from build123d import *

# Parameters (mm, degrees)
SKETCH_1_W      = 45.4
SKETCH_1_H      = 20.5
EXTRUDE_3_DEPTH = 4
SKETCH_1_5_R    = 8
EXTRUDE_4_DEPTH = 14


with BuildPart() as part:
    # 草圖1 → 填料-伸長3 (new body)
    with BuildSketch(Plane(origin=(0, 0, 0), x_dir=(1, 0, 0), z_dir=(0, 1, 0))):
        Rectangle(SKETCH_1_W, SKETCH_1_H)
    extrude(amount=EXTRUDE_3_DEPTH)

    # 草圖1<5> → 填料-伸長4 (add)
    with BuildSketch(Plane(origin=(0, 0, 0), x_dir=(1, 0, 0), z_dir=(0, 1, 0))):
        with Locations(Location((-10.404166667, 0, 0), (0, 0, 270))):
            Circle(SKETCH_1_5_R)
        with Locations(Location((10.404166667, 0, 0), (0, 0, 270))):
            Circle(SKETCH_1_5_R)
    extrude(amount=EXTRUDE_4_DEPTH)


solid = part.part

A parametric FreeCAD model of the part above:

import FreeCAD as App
import Part
import Sketcher
from FreeCAD import Vector


def add_polygon(sketch, points):
    """Adds a closed chain of lines whose ends are joined by coincident constraints."""
    first, n = sketch.GeometryCount, len(points)
    for a, b in zip(points, points[1:] + points[:1]):
        sketch.addGeometry(Part.LineSegment(App.Vector(*a, 0), App.Vector(*b, 0)), False)
    for i in range(n):
        sketch.addConstraint(Sketcher.Constraint("Coincident", first + i, 2, first + (i + 1) % n, 1))

doc = App.newDocument("Part")
body = doc.addObject("PartDesign::Body", "Body")

sketch1 = doc.addObject("Sketcher::SketchObject", "Sketch")
body.addObject(sketch1)
sketch1.AttachmentSupport = (doc.XZ_Plane, [""])
sketch1.MapMode = "FlatFace"
add_polygon(sketch1, [(-23, -10), (-23, 10), (23, 10), (23, -10)])
sketch1.addConstraint(Sketcher.Constraint("Vertical", 0))
sketch1.addConstraint(Sketcher.Constraint("Horizontal", 1))
sketch1.addConstraint(Sketcher.Constraint("Vertical", 2))
sketch1.addConstraint(Sketcher.Constraint("Horizontal", 3))
sketch1.addConstraint(Sketcher.Constraint("Symmetric", 0, 2, 2, 2, -1, 1))
sketch1.addConstraint(Sketcher.Constraint("DistanceX", 1, 1, 1, 2, 45.4))
sketch1.addConstraint(Sketcher.Constraint("DistanceY", 0, 1, 0, 2, 20.5))
pad1 = doc.addObject("PartDesign::Pad", "Pad")
body.addObject(pad1)
pad1.Profile = sketch1
pad1.Length = 4
pad1.Reversed = True

sketch2 = doc.addObject("Sketcher::SketchObject", "Sketch001")
body.addObject(sketch2)
sketch2.AttachmentSupport = (doc.XZ_Plane, [""])
sketch2.MapMode = "FlatFace"
sketch2.addGeometry(Part.Circle(Vector(-10, 0, 0), Vector(0, 0, 1), 8), False)
sketch2.addGeometry(Part.Circle(Vector(10, 0, 0), Vector(0, 0, 1), 8), False)
sketch2.addConstraint(Sketcher.Constraint("Equal", 0, 1))
sketch2.addConstraint(Sketcher.Constraint("Symmetric", 0, 3, 1, 3, -1, 1))
sketch2.addConstraint(Sketcher.Constraint("PointOnObject", 0, 3, -1))
sketch2.addConstraint(Sketcher.Constraint("Diameter", 0, 16.0))
sketch2.addConstraint(Sketcher.Constraint("DistanceX", 0, 3, -1, 1, 10.404167))
pad2 = doc.addObject("PartDesign::Pad", "Pad001")
body.addObject(pad2)
pad2.Profile = sketch2
pad2.Length = 14
pad2.Reversed = True

doc.recompute()
